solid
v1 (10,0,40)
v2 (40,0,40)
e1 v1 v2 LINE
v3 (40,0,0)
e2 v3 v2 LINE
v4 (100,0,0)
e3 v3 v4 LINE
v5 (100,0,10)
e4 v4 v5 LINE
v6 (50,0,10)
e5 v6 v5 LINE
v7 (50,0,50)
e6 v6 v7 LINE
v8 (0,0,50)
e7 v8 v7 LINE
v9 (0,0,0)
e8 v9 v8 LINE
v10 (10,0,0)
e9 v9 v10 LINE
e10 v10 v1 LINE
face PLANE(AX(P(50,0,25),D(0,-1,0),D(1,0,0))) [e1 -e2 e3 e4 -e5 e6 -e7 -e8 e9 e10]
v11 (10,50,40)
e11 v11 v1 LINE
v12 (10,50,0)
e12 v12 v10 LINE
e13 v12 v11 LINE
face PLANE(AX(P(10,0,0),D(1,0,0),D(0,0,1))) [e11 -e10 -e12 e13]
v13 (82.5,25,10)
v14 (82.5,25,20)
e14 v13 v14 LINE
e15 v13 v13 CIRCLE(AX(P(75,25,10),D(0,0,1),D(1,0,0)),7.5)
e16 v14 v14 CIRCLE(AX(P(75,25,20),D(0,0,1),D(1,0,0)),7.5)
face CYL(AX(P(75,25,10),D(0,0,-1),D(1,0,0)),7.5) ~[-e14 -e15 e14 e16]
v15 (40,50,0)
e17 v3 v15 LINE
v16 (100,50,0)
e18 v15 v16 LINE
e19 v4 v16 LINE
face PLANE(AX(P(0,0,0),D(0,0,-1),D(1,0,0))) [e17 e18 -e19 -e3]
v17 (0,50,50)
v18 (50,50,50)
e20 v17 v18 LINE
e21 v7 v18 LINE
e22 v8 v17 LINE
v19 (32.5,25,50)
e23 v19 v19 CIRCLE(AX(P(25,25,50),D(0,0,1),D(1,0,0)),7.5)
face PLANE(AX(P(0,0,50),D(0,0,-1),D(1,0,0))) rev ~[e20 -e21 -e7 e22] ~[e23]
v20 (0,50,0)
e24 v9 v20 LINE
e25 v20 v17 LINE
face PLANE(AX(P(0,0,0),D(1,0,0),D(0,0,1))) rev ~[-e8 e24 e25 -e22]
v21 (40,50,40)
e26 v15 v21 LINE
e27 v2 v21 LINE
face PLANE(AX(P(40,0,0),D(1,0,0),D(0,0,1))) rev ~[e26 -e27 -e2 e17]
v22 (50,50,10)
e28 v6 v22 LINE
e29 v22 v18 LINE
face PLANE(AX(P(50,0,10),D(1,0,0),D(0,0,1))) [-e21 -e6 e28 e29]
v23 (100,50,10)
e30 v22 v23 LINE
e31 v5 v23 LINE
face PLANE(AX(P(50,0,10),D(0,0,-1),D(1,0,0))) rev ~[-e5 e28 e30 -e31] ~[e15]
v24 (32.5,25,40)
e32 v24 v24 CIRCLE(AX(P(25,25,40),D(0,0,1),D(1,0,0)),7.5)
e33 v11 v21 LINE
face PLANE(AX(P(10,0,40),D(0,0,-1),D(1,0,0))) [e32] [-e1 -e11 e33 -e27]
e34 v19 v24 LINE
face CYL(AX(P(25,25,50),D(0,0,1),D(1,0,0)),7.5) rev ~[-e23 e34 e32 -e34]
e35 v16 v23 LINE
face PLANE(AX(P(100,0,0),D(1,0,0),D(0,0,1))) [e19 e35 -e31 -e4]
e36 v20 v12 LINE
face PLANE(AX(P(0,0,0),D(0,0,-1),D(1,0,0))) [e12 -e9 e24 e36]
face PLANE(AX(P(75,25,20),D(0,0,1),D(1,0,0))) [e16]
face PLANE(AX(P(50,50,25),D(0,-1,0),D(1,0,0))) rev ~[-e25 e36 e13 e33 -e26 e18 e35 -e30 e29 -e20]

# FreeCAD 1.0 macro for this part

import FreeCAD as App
import Part
import Sketcher
from FreeCAD import Vector
Q = App.Units.Quantity


def add_polygon(sketch, points):
    """Adds a closed chain of lines whose ends are joined by coincident constraints."""
    first, n = sketch.GeometryCount, len(points)
    for a, b in zip(points, points[1:] + points[:1]):
        sketch.addGeometry(Part.LineSegment(App.Vector(*a, 0), App.Vector(*b, 0)), False)
    for i in range(n):
        sketch.addConstraint(Sketcher.Constraint("Coincident", first + i, 2, first + (i + 1) % n, 1))

doc = App.newDocument("Part")
params = doc.addObject("Spreadsheet::Sheet", "Params")
for row, (alias, value) in enumerate([
    ("sketch1_width", "100 mm"),
    ("sketch1_height", "50 mm"),
    ("pad1_length", "50 mm"),
    ("sketch2_width", "30 mm"),
    ("sketch2_height", "40 mm"),
    ("pocket1_length", "50 mm"),
    ("pocket2_length", "25 mm"),
    ("sketch3_width", "50 mm"),
    ("sketch3_height", "40 mm"),
    ("pocket3_length", "50 mm"),
    ("pocket4_length", "25 mm"),
    ("sketch4_diameter", "15 mm"),
    ("sketch5_diameter", "15 mm"),
    ("pad2_length", "10 mm"),
], start=1):
    params.set(f"A{row}", alias)
    params.set(f"B{row}", "=" + value)
    params.setAlias(f"B{row}", alias)

body = doc.addObject("PartDesign::Body", "Body")

# Sketch on XZ plane
sketch1 = body.newObject("Sketcher::SketchObject", "Sketch")
sketch1.AttachmentSupport = (doc.getObject("XZ_Plane"), [""])
sketch1.MapMode = "FlatFace"
add_polygon(sketch1, [(0, 50), (0, 0), (100, 0), (100, 50)])  # lines 0-3
sketch1.addConstraint(Sketcher.Constraint("Vertical", 0))
sketch1.addConstraint(Sketcher.Constraint("Horizontal", 1))
sketch1.addConstraint(Sketcher.Constraint("Vertical", 2))
sketch1.addConstraint(Sketcher.Constraint("Horizontal", 3))
sketch1.addConstraint(Sketcher.Constraint("Coincident", 0, 2, -1, 1))
sketch1.addConstraint(Sketcher.Constraint("DistanceX", 1, 1, 1, 2, Q("100 mm")))
sketch1.addConstraint(Sketcher.Constraint("DistanceY", 0, 2, 0, 1, Q("50 mm")))
sketch1.setExpression("Constraints[9]", "Params.sketch1_width")
sketch1.setExpression("Constraints[10]", "Params.sketch1_height")
pad1 = body.newObject("PartDesign::Pad", "Pad")
pad1.Profile = sketch1
pad1.setExpression("Length", "Params.pad1_length")
pad1.Reversed = True

# Sketch on XZ plane
sketch2 = body.newObject("Sketcher::SketchObject", "Sketch001")
sketch2.AttachmentSupport = (doc.getObject("XZ_Plane"), [""])
sketch2.MapMode = "FlatFace"
add_polygon(sketch2, [(10, 40), (10, 0), (40, 0), (40, 40)])  # lines 0-3
sketch2.addConstraint(Sketcher.Constraint("Vertical", 0))
sketch2.addConstraint(Sketcher.Constraint("Horizontal", 1))
sketch2.addConstraint(Sketcher.Constraint("Vertical", 2))
sketch2.addConstraint(Sketcher.Constraint("Horizontal", 3))
sketch2.addConstraint(Sketcher.Constraint("PointOnObject", 0, 2, -1))
sketch2.addConstraint(Sketcher.Constraint("DistanceX", 1, 1, 1, 2, Q("30 mm")))
sketch2.addConstraint(Sketcher.Constraint("DistanceY", 0, 2, 0, 1, Q("40 mm")))
sketch2.addConstraint(Sketcher.Constraint("DistanceX", -1, 1, 0, 2, Q("10 mm")))
sketch2.setExpression("Constraints[9]", "Params.sketch2_width")
sketch2.setExpression("Constraints[10]", "Params.sketch2_height")
pocket1 = body.newObject("PartDesign::Pocket", "Pocket")
pocket1.Profile = sketch2
pocket1.setExpression("Length", "Params.pocket1_length")
pocket2 = body.newObject("PartDesign::Pocket", "Pocket001")
pocket2.Profile = sketch2
pocket2.setExpression("Length", "Params.pocket2_length")

# Sketch on XZ plane
sketch3 = body.newObject("Sketcher::SketchObject", "Sketch002")
sketch3.AttachmentSupport = (doc.getObject("XZ_Plane"), [""])
sketch3.MapMode = "FlatFace"
add_polygon(sketch3, [(50, 50), (50, 10), (100, 10), (100, 50)])  # lines 0-3
sketch3.addConstraint(Sketcher.Constraint("Vertical", 0))
sketch3.addConstraint(Sketcher.Constraint("Horizontal", 1))
sketch3.addConstraint(Sketcher.Constraint("Vertical", 2))
sketch3.addConstraint(Sketcher.Constraint("Horizontal", 3))
sketch3.addConstraint(Sketcher.Constraint("DistanceX", 1, 1, 1, 2, Q("50 mm")))
sketch3.addConstraint(Sketcher.Constraint("DistanceY", 0, 2, 0, 1, Q("40 mm")))
sketch3.addConstraint(Sketcher.Constraint("DistanceX", -1, 1, 0, 2, Q("50 mm")))
sketch3.addConstraint(Sketcher.Constraint("DistanceY", -1, 1, 0, 2, Q("10 mm")))
sketch3.setExpression("Constraints[8]", "Params.sketch3_width")
sketch3.setExpression("Constraints[9]", "Params.sketch3_height")
pocket3 = body.newObject("PartDesign::Pocket", "Pocket002")
pocket3.Profile = sketch3
pocket3.setExpression("Length", "Params.pocket3_length")
pocket4 = body.newObject("PartDesign::Pocket", "Pocket003")
pocket4.Profile = sketch3
pocket4.setExpression("Length", "Params.pocket4_length")

# Sketch on XY plane
sketch4 = body.newObject("Sketcher::SketchObject", "Sketch003")
sketch4.AttachmentSupport = (doc.getObject("XY_Plane"), [""])
sketch4.MapMode = "FlatFace"
sketch4.AttachmentOffset = App.Placement(Vector(0, 0, 50), App.Rotation())
sketch4.addGeometry(Part.Circle(Vector(25, 25, 0), Vector(0, 0, 1), 8), False)
sketch4.addConstraint(Sketcher.Constraint("Diameter", 0, Q("15 mm")))
sketch4.addConstraint(Sketcher.Constraint("DistanceX", -1, 1, 0, 3, Q("25 mm")))
sketch4.addConstraint(Sketcher.Constraint("DistanceY", -1, 1, 0, 3, Q("25 mm")))
sketch4.setExpression("Constraints[0]", "Params.sketch4_diameter")
pocket5 = body.newObject("PartDesign::Pocket", "Pocket004")
pocket5.Profile = sketch4
pocket5.Type = "ThroughAll"

# Sketch on XY plane
sketch5 = body.newObject("Sketcher::SketchObject", "Sketch004")
sketch5.AttachmentSupport = (doc.getObject("XY_Plane"), [""])
sketch5.MapMode = "FlatFace"
sketch5.AttachmentOffset = App.Placement(Vector(0, 0, 10), App.Rotation())
sketch5.addGeometry(Part.Circle(Vector(75, 25, 0), Vector(0, 0, 1), 8), False)
sketch5.addConstraint(Sketcher.Constraint("Diameter", 0, Q("15 mm")))
sketch5.addConstraint(Sketcher.Constraint("DistanceX", -1, 1, 0, 3, Q("75 mm")))
sketch5.addConstraint(Sketcher.Constraint("DistanceY", -1, 1, 0, 3, Q("25 mm")))
sketch5.setExpression("Constraints[0]", "Params.sketch5_diameter")
pad2 = body.newObject("PartDesign::Pad", "Pad001")
pad2.Profile = sketch5
pad2.setExpression("Length", "Params.pad2_length")

doc.recompute()
